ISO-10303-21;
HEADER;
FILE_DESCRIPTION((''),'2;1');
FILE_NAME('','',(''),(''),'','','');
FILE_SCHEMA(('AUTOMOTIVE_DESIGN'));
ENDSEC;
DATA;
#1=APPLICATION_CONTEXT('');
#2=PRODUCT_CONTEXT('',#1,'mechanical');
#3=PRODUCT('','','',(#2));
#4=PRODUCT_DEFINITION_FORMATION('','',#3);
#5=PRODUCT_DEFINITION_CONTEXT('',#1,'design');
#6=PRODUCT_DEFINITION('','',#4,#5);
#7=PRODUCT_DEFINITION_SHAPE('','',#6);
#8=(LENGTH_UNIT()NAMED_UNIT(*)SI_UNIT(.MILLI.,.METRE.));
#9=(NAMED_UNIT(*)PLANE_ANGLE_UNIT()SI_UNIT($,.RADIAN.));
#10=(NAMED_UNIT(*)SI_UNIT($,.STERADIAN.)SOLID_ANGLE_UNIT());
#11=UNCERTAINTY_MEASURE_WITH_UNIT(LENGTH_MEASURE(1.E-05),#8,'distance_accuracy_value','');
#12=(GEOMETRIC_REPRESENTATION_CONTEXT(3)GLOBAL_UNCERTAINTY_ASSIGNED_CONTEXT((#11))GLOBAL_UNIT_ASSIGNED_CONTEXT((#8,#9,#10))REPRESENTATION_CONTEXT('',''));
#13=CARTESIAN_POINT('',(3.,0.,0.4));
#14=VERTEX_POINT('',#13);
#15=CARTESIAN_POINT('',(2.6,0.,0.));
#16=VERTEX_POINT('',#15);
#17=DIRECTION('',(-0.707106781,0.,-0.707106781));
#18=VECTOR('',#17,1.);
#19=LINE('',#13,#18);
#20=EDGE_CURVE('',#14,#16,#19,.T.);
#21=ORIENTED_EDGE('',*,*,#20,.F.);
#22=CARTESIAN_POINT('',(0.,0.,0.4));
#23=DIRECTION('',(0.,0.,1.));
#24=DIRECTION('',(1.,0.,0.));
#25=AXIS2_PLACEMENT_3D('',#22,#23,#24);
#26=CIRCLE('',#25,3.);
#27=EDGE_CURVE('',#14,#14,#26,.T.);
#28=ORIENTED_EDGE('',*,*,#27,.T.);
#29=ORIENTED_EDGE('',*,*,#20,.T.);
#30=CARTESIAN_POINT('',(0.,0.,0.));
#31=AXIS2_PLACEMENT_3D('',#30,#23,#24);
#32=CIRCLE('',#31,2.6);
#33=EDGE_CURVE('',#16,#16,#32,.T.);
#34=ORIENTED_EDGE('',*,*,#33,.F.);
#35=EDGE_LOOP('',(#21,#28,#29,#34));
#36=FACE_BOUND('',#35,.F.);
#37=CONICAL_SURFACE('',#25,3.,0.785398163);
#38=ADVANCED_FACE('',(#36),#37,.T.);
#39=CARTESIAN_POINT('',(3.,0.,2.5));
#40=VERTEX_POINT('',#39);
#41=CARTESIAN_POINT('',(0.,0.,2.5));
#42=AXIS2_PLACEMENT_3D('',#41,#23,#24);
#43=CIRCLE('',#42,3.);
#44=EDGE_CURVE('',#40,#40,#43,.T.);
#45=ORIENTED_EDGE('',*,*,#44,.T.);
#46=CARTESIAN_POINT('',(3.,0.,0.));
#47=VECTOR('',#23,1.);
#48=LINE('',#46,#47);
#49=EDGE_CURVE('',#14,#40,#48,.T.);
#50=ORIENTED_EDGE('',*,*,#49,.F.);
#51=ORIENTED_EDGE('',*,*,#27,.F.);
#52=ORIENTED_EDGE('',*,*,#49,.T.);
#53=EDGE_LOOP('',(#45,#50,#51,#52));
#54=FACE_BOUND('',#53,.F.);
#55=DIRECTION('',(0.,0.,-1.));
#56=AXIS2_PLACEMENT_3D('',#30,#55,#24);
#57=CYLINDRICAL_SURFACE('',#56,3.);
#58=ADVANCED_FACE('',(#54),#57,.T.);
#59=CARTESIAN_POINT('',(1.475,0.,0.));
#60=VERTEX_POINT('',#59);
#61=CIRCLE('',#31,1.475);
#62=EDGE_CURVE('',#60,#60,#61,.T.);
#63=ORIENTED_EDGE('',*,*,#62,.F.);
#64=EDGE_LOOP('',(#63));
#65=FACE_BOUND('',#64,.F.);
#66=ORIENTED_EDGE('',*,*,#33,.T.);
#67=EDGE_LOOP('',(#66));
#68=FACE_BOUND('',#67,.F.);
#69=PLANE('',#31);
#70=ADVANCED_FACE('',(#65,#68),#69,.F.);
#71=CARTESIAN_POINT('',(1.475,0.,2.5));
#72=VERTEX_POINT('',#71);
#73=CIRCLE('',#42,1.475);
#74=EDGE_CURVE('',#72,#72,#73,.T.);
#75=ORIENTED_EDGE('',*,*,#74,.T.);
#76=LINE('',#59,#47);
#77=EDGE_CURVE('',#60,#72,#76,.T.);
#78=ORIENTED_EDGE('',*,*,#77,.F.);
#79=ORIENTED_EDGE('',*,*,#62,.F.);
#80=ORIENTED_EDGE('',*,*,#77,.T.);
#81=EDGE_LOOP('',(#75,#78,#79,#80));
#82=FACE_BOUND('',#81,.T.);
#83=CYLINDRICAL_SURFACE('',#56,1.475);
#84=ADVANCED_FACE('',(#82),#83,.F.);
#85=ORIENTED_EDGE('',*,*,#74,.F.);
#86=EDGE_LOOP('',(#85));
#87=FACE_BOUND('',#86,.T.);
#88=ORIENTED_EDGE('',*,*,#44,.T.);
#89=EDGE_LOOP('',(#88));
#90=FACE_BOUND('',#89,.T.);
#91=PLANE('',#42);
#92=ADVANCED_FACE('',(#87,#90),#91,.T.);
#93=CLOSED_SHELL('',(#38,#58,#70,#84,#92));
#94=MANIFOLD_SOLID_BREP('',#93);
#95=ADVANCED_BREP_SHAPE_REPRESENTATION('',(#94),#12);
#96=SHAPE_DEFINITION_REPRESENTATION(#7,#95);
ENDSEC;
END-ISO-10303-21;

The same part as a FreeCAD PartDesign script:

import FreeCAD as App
import Part
import Sketcher
from FreeCAD import Vector


def edges_at(feature, points):
    """Names of the edges that pass closest to the given points."""
    edges = feature.Shape.Edges
    near = lambda p: min(range(len(edges)), key=lambda i: edges[i].distToShape(Part.Vertex(*p))[0])
    return sorted({f"Edge{near(p) + 1}" for p in points})

doc = App.newDocument("Part")
params = doc.addObject("Spreadsheet::Sheet", "Params")
for row, (alias, value) in enumerate([
    ("sketch1_diameter", "6 mm"),
    ("sketch1_diameter2", "2.95 mm"),
    ("pad1_length", "2.5 mm"),
    ("chamfer_size", "0.4 mm"),
], start=1):
    params.set(f"A{row}", alias)
    params.set(f"B{row}", "=" + value)
    params.setAlias(f"B{row}", alias)

body = doc.addObject("PartDesign::Body", "Body")

# Sketch on XY plane
sketch1 = doc.addObject("Sketcher::SketchObject", "Sketch")
body.addObject(sketch1)
sketch1.AttachmentSupport = (doc.XY_Plane, [""])
sketch1.MapMode = "FlatFace"
sketch1.addGeometry([
    Part.Circle(Vector(0, 0, 0), Vector(0, 0, 1), 3),
    Part.Circle(Vector(0, 0, 0), Vector(0, 0, 1), 1.5),
], False)
sketch1.addConstraint([
    Sketcher.Constraint("Coincident", 0, 3, -1, 1),
    Sketcher.Constraint("Coincident", 1, 3, -1, 1),
    Sketcher.Constraint("Diameter", 0, 6.0),
    Sketcher.Constraint("Diameter", 1, 2.95),
])
sketch1.setExpression("Constraints[2]", "Params.sketch1_diameter")
sketch1.setExpression("Constraints[3]", "Params.sketch1_diameter2")
pad1 = doc.addObject("PartDesign::Pad", "Pad")
body.addObject(pad1)
pad1.Profile = sketch1
pad1.setExpression("Length", "Params.pad1_length")
doc.recompute()

chamfer = doc.addObject("PartDesign::Chamfer", "Chamfer")
body.addObject(chamfer)
chamfer.Base = (pad1, edges_at(pad1, [(-3, 0, 0)]))
chamfer.setExpression("Size", "Params.chamfer_size")

doc.recompute()
